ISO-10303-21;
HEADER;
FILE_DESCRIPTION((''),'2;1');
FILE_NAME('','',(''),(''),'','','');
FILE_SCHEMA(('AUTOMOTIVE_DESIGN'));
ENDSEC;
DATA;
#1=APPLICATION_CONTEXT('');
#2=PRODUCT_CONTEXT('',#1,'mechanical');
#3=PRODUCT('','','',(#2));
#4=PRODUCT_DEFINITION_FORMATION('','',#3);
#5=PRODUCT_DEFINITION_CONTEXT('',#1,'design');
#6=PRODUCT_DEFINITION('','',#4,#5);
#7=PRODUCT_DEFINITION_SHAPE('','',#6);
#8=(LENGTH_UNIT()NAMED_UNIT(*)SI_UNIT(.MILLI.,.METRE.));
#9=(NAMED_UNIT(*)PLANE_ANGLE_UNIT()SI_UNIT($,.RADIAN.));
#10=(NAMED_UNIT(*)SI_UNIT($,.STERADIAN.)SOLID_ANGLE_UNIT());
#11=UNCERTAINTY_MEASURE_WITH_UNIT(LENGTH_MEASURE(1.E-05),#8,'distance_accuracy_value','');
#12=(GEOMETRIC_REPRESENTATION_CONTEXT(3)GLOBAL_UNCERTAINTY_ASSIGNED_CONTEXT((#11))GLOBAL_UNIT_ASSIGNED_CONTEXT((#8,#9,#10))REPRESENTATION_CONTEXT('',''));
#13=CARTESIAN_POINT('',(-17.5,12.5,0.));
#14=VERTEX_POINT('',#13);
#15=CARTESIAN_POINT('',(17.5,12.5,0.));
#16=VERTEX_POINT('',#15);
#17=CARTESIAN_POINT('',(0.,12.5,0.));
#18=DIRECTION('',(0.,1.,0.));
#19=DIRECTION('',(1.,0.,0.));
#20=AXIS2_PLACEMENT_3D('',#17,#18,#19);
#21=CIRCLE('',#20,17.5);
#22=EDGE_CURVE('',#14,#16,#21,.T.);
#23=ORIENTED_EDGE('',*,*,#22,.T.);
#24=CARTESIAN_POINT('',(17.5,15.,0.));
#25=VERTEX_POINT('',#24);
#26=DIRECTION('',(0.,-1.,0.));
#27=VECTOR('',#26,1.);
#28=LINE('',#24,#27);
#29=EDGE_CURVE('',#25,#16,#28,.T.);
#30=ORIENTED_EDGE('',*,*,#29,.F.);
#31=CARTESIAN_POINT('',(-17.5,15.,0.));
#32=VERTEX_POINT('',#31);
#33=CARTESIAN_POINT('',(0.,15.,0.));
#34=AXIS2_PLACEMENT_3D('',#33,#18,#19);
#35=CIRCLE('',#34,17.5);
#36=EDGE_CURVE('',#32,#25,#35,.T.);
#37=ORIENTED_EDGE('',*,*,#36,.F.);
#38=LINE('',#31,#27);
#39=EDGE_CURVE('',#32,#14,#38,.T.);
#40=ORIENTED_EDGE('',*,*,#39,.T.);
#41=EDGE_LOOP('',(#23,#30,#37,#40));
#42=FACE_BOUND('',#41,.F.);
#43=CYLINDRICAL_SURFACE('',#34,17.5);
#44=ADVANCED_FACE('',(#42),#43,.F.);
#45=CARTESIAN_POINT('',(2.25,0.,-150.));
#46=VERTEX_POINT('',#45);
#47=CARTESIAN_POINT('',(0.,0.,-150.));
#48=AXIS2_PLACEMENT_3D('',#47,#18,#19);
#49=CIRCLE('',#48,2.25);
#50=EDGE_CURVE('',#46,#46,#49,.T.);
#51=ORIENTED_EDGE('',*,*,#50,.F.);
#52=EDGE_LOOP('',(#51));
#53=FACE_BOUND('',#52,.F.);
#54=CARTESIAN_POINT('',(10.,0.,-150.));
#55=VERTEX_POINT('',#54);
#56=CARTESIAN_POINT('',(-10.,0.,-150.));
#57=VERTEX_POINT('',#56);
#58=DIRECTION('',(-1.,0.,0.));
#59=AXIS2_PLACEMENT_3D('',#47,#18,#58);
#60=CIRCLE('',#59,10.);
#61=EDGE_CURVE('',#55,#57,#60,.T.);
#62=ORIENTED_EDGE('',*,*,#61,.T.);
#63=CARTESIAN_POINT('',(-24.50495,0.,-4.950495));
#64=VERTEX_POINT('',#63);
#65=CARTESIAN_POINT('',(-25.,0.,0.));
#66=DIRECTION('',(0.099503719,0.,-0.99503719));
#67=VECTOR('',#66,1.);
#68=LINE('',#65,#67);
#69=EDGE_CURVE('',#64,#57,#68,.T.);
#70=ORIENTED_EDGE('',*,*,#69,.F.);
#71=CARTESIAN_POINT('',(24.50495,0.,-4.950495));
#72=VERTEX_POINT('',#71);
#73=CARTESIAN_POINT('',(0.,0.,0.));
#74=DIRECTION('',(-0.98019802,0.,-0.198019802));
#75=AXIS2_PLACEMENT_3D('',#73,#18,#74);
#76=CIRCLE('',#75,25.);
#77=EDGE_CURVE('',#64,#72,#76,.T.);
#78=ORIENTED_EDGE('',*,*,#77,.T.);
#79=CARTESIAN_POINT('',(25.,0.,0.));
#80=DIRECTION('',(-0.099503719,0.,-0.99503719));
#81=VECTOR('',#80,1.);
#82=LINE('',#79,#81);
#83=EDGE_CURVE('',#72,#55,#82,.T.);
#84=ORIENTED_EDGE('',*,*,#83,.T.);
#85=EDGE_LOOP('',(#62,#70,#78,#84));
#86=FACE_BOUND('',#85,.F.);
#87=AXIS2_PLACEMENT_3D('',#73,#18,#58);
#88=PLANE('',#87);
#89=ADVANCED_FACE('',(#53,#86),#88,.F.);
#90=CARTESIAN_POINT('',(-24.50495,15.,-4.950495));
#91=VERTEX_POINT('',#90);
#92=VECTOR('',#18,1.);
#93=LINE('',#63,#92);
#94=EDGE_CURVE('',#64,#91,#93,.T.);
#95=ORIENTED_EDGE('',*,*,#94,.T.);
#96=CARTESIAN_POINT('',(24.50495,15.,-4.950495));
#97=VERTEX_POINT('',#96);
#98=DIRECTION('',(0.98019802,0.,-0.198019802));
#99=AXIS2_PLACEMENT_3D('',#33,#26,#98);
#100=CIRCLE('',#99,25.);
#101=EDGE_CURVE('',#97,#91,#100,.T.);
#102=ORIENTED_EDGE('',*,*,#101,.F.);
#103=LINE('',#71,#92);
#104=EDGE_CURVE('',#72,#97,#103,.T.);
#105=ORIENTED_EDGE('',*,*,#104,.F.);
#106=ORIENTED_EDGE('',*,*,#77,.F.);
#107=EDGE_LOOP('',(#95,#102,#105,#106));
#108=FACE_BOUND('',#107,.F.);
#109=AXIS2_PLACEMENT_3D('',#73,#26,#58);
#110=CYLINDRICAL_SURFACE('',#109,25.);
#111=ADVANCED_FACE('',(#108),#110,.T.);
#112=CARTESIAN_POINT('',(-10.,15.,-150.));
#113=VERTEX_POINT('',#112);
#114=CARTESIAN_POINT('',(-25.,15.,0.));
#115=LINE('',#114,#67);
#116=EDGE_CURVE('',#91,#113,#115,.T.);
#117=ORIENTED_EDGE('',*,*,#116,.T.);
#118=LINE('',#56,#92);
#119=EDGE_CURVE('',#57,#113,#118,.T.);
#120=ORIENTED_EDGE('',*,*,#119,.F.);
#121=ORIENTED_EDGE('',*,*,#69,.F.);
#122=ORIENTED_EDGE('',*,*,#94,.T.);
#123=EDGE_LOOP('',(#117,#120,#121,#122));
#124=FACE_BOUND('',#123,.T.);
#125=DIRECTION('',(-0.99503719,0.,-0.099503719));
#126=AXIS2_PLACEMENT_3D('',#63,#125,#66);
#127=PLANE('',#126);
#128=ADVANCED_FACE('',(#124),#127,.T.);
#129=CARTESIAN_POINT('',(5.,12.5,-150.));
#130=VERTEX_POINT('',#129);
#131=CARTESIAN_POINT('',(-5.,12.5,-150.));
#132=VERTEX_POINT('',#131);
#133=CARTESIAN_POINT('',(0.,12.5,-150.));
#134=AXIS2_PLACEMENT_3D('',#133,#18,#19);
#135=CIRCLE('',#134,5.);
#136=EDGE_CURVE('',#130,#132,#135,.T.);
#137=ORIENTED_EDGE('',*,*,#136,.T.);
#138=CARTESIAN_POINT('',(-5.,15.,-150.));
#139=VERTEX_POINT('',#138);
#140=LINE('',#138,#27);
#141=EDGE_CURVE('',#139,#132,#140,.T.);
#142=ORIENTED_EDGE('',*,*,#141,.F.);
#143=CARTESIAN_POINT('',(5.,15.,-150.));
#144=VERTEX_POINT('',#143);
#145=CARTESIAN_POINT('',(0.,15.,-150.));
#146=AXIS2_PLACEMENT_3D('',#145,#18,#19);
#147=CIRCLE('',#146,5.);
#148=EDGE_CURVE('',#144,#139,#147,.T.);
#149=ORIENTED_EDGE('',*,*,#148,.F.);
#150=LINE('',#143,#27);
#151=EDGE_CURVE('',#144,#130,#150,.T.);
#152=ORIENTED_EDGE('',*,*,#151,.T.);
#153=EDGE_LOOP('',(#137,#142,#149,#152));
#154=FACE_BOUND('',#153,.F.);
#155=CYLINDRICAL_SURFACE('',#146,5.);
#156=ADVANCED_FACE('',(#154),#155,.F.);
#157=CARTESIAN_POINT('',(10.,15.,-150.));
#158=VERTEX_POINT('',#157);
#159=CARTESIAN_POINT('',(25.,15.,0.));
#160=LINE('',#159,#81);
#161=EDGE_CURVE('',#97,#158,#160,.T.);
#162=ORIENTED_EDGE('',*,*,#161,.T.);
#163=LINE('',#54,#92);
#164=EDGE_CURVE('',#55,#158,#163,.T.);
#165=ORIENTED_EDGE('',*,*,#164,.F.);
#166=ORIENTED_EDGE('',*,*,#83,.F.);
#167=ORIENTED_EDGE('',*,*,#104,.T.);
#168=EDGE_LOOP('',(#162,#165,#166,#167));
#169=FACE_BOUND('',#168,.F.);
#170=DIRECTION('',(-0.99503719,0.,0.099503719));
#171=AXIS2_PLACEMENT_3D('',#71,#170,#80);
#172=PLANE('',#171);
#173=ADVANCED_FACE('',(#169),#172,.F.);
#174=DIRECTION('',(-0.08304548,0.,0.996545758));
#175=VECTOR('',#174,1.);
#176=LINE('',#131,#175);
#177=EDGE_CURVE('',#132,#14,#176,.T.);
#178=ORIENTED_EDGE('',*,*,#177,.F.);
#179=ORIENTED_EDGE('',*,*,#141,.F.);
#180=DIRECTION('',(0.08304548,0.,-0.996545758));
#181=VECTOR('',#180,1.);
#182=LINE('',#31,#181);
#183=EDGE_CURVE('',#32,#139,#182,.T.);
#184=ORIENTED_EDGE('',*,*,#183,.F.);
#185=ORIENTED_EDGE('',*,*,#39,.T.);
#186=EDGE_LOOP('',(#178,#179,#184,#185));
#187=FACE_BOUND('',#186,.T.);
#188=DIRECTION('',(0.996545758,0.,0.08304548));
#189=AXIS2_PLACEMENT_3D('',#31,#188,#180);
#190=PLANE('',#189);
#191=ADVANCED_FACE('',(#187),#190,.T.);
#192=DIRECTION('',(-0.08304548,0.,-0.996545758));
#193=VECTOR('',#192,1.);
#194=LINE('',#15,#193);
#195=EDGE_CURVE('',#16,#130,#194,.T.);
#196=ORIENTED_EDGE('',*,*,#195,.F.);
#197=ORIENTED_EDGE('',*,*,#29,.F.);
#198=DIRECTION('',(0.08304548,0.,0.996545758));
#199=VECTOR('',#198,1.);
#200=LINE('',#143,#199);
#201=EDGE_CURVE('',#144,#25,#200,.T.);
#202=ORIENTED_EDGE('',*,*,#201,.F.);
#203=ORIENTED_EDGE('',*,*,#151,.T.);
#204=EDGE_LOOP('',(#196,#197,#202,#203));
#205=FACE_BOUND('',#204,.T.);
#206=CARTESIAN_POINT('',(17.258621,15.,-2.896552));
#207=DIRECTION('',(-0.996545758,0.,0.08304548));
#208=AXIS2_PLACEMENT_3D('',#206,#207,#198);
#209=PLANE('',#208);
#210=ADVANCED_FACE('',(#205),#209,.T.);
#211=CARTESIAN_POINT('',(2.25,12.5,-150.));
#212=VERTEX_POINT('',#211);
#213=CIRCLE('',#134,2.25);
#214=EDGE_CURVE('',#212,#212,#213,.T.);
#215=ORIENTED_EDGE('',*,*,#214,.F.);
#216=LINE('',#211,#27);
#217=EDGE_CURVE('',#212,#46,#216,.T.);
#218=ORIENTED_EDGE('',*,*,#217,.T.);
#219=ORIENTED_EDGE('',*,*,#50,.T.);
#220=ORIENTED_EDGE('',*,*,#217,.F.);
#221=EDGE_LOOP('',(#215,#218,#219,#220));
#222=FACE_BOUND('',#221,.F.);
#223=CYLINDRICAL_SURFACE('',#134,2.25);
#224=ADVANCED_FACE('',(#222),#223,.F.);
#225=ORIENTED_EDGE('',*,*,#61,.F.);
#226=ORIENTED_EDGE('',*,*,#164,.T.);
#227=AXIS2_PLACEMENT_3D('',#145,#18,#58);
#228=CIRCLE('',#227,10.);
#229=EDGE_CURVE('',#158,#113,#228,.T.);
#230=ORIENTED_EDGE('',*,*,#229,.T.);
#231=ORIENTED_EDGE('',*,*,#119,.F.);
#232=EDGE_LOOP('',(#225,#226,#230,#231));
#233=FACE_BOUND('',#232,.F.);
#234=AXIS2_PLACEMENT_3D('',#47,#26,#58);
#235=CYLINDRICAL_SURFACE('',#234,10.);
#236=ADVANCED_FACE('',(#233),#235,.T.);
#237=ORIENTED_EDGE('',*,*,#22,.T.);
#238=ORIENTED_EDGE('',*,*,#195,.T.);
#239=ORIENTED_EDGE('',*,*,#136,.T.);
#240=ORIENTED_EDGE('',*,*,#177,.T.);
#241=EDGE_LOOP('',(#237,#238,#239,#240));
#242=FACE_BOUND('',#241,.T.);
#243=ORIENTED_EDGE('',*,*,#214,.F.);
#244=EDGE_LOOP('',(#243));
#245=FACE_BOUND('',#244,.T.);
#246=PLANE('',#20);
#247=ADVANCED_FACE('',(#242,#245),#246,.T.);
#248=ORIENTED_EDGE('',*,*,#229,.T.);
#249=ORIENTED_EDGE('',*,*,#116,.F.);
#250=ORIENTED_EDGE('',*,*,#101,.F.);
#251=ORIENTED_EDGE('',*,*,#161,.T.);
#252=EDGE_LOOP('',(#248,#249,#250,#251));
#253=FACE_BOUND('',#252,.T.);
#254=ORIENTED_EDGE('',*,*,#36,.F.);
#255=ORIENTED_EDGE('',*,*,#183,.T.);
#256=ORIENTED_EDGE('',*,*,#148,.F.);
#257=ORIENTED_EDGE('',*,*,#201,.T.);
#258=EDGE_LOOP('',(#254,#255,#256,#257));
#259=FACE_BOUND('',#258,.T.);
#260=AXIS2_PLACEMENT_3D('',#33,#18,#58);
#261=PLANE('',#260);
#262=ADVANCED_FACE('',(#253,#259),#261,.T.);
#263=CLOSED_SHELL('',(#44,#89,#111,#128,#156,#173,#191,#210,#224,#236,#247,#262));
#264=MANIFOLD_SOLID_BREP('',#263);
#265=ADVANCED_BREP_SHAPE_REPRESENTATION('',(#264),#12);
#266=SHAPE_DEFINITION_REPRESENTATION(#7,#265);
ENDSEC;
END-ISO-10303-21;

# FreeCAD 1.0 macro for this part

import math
import FreeCAD as App
import Part
import Sketcher
from FreeCAD import Vector
Q = App.Units.Quantity

doc = App.newDocument("Part")
body = doc.addObject("PartDesign::Body", "Body")

# Sketch on XZ plane
sketch1 = body.newObject("Sketcher::SketchObject", "Sketch")
sketch1.AttachmentSupport = (doc.getObject("XZ_Plane"), [""])
sketch1.MapMode = "FlatFace"
sketch1.addGeometry(Part.LineSegment(Vector(24.50495, -4.950495, 0), Vector(10, -150, 0)), False)
sketch1.addGeometry(Part.ArcOfCircle(Part.Circle(Vector(0, -150, 0), Vector(0, 0, 1), 10), math.radians(180), math.radians(360)), False)
sketch1.addGeometry(Part.LineSegment(Vector(-10, -150, 0), Vector(-24.50495, -4.950495, 0)), False)
sketch1.addGeometry(Part.ArcOfCircle(Part.Circle(Vector(0, 0, 0), Vector(0, 0, 1), 25), math.radians(-11.421186), math.radians(191.421186)), False)
sketch1.addConstraint(Sketcher.Constraint("Coincident", 0, 2, 1, 2))
sketch1.addConstraint(Sketcher.Constraint("Coincident", 1, 1, 2, 1))
sketch1.addConstraint(Sketcher.Constraint("Coincident", 2, 2, 3, 2))
sketch1.addConstraint(Sketcher.Constraint("Coincident", 3, 1, 0, 1))
sketch1.addConstraint(Sketcher.Constraint("Coincident", 3, 3, -1, 1))
sketch1.addConstraint(Sketcher.Constraint("Symmetric", 0, 2, 1, 1, -2))
sketch1.addConstraint(Sketcher.Constraint("Horizontal", 1, 3, 0, 2))
sketch1.addConstraint(Sketcher.Constraint("Horizontal", 2, 2, 3, 1))
sketch1.addConstraint(Sketcher.Constraint("Radius", 1, 10.0))
sketch1.addConstraint(Sketcher.Constraint("Radius", 3, 25.0))
sketch1.addConstraint(Sketcher.Constraint("DistanceY", 1, 3, -1, 1, 150.0))
sketch1.addConstraint(Sketcher.Constraint("Angle", 0, Q("-95.7106 deg")))
pad1 = body.newObject("PartDesign::Pad", "Pad")
pad1.Profile = sketch1
pad1.Length = 15
pad1.Reversed = True

# Sketch on XZ plane
sketch2 = body.newObject("Sketcher::SketchObject", "Sketch001")
sketch2.AttachmentSupport = (doc.getObject("XZ_Plane"), [""])
sketch2.MapMode = "FlatFace"
sketch2.AttachmentOffset = App.Placement(Vector(0, 0, -15), App.Rotation())
sketch2.addGeometry(Part.ArcOfCircle(Part.Circle(Vector(0, 0, 0), Vector(0, 0, 1), 17.5), math.radians(0), math.radians(180)), False)
sketch2.addGeometry(Part.LineSegment(Vector(17.5, 0, 0), Vector(5, -150, 0)), False)
sketch2.addGeometry(Part.ArcOfCircle(Part.Circle(Vector(0, -150, 0), Vector(0, 0, 1), 5), math.radians(180), math.radians(360)), False)
sketch2.addGeometry(Part.LineSegment(Vector(-5, -150, 0), Vector(-17.5, 0, 0)), False)
sketch2.addConstraint(Sketcher.Constraint("Coincident", 0, 1, 1, 1))
sketch2.addConstraint(Sketcher.Constraint("Coincident", 1, 2, 2, 2))
sketch2.addConstraint(Sketcher.Constraint("Coincident", 2, 1, 3, 1))
sketch2.addConstraint(Sketcher.Constraint("Coincident", 3, 2, 0, 2))
sketch2.addConstraint(Sketcher.Constraint("Coincident", 0, 3, -1, 1))
sketch2.addConstraint(Sketcher.Constraint("Symmetric", 1, 2, 2, 1, -2))
sketch2.addConstraint(Sketcher.Constraint("PointOnObject", 0, 1, -1))
sketch2.addConstraint(Sketcher.Constraint("PointOnObject", 3, 2, -1))
sketch2.addConstraint(Sketcher.Constraint("Horizontal", 2, 3, 1, 2))
sketch2.addConstraint(Sketcher.Constraint("Radius", 2, 5.0))
sketch2.addConstraint(Sketcher.Constraint("Radius", 0, 17.5))
sketch2.addConstraint(Sketcher.Constraint("DistanceY", 2, 3, -1, 1, 150.0))
pocket1 = body.newObject("PartDesign::Pocket", "Pocket")
pocket1.Profile = sketch2
pocket1.Length = 2.5
pocket1.Reversed = True

# Sketch on XZ plane
sketch3 = body.newObject("Sketcher::SketchObject", "Sketch002")
sketch3.AttachmentSupport = (doc.getObject("XZ_Plane"), [""])
sketch3.MapMode = "FlatFace"
sketch3.AttachmentOffset = App.Placement(Vector(0, 0, -12.5), App.Rotation())
sketch3.addGeometry(Part.Circle(Vector(0, -150, 0), Vector(0, 0, 1), 2.25), False)
sketch3.addConstraint(Sketcher.Constraint("PointOnObject", 0, 3, -2))
sketch3.addConstraint(Sketcher.Constraint("Diameter", 0, 4.5))
sketch3.addConstraint(Sketcher.Constraint("DistanceY", 0, 3, -1, 1, 150.0))
pocket2 = body.newObject("PartDesign::Pocket", "Pocket001")
pocket2.Profile = sketch3
pocket2.Length = 12.5
pocket2.Reversed = True

doc.recompute()
